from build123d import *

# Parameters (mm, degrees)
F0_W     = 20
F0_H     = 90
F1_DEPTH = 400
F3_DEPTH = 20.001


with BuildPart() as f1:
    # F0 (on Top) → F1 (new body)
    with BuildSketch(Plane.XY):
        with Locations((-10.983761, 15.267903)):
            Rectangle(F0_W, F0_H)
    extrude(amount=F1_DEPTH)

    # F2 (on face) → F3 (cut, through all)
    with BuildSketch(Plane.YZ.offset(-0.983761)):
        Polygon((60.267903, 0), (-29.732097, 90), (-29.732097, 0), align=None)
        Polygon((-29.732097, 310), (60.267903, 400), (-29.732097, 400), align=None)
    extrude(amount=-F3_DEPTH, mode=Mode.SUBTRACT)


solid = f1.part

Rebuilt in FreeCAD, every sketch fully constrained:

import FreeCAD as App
import Part
import Sketcher

doc = App.newDocument("Part")
params = doc.addObject("Spreadsheet::Sheet", "Params")
for row, (alias, value) in enumerate([
    ("sketch1_width", "20 mm"),
    ("sketch1_height", "90 mm"),
    ("pad1_length", "400 mm"),
    ("sketch2_width", "90 mm"),
], start=1):
    params.set(f"A{row}", alias)
    params.set(f"B{row}", "=" + value)
    params.setAlias(f"B{row}", alias)

body = doc.addObject("PartDesign::Body", "Body")

sketch1 = body.newObject("Sketcher::SketchObject", "Sketch")
sketch1.AttachmentSupport = (doc.getObject("XY_Plane"), [""])
sketch1.MapMode = "FlatFace"
sketch1.addGeometry(Part.LineSegment(App.Vector(-21, 60, 0), App.Vector(-21, -30, 0)), False)
sketch1.addGeometry(Part.LineSegment(App.Vector(-21, -30, 0), App.Vector(-1, -30, 0)), False)
sketch1.addGeometry(Part.LineSegment(App.Vector(-1, -30, 0), App.Vector(-1, 60, 0)), False)
sketch1.addGeometry(Part.LineSegment(App.Vector(-1, 60, 0), App.Vector(-21, 60, 0)), False)
sketch1.addConstraint(Sketcher.Constraint("Coincident", 0, 2, 1, 1))
sketch1.addConstraint(Sketcher.Constraint("Coincident", 1, 2, 2, 1))
sketch1.addConstraint(Sketcher.Constraint("Coincident", 2, 2, 3, 1))
sketch1.addConstraint(Sketcher.Constraint("Coincident", 3, 2, 0, 1))
sketch1.addConstraint(Sketcher.Constraint("Vertical", 0))
sketch1.addConstraint(Sketcher.Constraint("Horizontal", 1))
sketch1.addConstraint(Sketcher.Constraint("Vertical", 2))
sketch1.addConstraint(Sketcher.Constraint("Horizontal", 3))
sketch1.addConstraint(Sketcher.Constraint("DistanceX", 1, 1, 1, 2, 20.0))
sketch1.addConstraint(Sketcher.Constraint("DistanceY", 0, 2, 0, 1, 90.0))
sketch1.addConstraint(Sketcher.Constraint("DistanceX", 0, 2, -1, 1, 20.983761))
sketch1.addConstraint(Sketcher.Constraint("DistanceY", 0, 2, -1, 1, 29.732097))
sketch1.setExpression("Constraints[8]", "Params.sketch1_width")
sketch1.setExpression("Constraints[9]", "Params.sketch1_height")
pad1 = body.newObject("PartDesign::Pad", "Pad")
pad1.Profile = sketch1
pad1.setExpression("Length", "Params.pad1_length")

sketch2 = body.newObject("Sketcher::SketchObject", "Sketch001")
sketch2.AttachmentSupport = (doc.getObject("YZ_Plane"), [""])
sketch2.MapMode = "FlatFace"
sketch2.AttachmentOffset = App.Placement(App.Vector(0, 0, -0.983761), App.Rotation())
sketch2.addGeometry(Part.LineSegment(App.Vector(60, 0, 0), App.Vector(-30, 90, 0)), False)
sketch2.addGeometry(Part.LineSegment(App.Vector(-30, 90, 0), App.Vector(-30, 0, 0)), False)
sketch2.addGeometry(Part.LineSegment(App.Vector(-30, 0, 0), App.Vector(60, 0, 0)), False)
sketch2.addGeometry(Part.LineSegment(App.Vector(-30, 310, 0), App.Vector(60, 400, 0)), False)
sketch2.addGeometry(Part.LineSegment(App.Vector(60, 400, 0), App.Vector(-30, 400, 0)), False)
sketch2.addGeometry(Part.LineSegment(App.Vector(-30, 400, 0), App.Vector(-30, 310, 0)), False)
sketch2.addConstraint(Sketcher.Constraint("Coincident", 0, 2, 1, 1))
sketch2.addConstraint(Sketcher.Constraint("Coincident", 1, 2, 2, 1))
sketch2.addConstraint(Sketcher.Constraint("Coincident", 2, 2, 0, 1))
sketch2.addConstraint(Sketcher.Constraint("Coincident", 3, 2, 4, 1))
sketch2.addConstraint(Sketcher.Constraint("Coincident", 4, 2, 5, 1))
sketch2.addConstraint(Sketcher.Constraint("Coincident", 5, 2, 3, 1))
sketch2.addConstraint(Sketcher.Constraint("Vertical", 1))
sketch2.addConstraint(Sketcher.Constraint("Horizontal", 2))
sketch2.addConstraint(Sketcher.Constraint("Horizontal", 4))
sketch2.addConstraint(Sketcher.Constraint("Vertical", 5))
sketch2.addConstraint(Sketcher.Constraint("PointOnObject", 1, 2, -1))
sketch2.addConstraint(Sketcher.Constraint("Perpendicular", 0, 3))
sketch2.addConstraint(Sketcher.Constraint("Vertical", 2, 2, 3, 2))
sketch2.addConstraint(Sketcher.Constraint("Vertical", 1, 2, 4, 2))
sketch2.addConstraint(Sketcher.Constraint("Equal", 4, 1))
sketch2.addConstraint(Sketcher.Constraint("DistanceX", 2, 1, 2, 2, 90.0))
sketch2.addConstraint(Sketcher.Constraint("DistanceY", -1, 1, 3, 2, 400.0))
sketch2.addConstraint(Sketcher.Constraint("DistanceX", 0, 2, -1, 1, 29.732097))
sketch2.setExpression("Constraints[15]", "Params.sketch2_width")
pocket1 = body.newObject("PartDesign::Pocket", "Pocket")
pocket1.Profile = sketch2
pocket1.Type = "ThroughAll"

doc.recompute()
